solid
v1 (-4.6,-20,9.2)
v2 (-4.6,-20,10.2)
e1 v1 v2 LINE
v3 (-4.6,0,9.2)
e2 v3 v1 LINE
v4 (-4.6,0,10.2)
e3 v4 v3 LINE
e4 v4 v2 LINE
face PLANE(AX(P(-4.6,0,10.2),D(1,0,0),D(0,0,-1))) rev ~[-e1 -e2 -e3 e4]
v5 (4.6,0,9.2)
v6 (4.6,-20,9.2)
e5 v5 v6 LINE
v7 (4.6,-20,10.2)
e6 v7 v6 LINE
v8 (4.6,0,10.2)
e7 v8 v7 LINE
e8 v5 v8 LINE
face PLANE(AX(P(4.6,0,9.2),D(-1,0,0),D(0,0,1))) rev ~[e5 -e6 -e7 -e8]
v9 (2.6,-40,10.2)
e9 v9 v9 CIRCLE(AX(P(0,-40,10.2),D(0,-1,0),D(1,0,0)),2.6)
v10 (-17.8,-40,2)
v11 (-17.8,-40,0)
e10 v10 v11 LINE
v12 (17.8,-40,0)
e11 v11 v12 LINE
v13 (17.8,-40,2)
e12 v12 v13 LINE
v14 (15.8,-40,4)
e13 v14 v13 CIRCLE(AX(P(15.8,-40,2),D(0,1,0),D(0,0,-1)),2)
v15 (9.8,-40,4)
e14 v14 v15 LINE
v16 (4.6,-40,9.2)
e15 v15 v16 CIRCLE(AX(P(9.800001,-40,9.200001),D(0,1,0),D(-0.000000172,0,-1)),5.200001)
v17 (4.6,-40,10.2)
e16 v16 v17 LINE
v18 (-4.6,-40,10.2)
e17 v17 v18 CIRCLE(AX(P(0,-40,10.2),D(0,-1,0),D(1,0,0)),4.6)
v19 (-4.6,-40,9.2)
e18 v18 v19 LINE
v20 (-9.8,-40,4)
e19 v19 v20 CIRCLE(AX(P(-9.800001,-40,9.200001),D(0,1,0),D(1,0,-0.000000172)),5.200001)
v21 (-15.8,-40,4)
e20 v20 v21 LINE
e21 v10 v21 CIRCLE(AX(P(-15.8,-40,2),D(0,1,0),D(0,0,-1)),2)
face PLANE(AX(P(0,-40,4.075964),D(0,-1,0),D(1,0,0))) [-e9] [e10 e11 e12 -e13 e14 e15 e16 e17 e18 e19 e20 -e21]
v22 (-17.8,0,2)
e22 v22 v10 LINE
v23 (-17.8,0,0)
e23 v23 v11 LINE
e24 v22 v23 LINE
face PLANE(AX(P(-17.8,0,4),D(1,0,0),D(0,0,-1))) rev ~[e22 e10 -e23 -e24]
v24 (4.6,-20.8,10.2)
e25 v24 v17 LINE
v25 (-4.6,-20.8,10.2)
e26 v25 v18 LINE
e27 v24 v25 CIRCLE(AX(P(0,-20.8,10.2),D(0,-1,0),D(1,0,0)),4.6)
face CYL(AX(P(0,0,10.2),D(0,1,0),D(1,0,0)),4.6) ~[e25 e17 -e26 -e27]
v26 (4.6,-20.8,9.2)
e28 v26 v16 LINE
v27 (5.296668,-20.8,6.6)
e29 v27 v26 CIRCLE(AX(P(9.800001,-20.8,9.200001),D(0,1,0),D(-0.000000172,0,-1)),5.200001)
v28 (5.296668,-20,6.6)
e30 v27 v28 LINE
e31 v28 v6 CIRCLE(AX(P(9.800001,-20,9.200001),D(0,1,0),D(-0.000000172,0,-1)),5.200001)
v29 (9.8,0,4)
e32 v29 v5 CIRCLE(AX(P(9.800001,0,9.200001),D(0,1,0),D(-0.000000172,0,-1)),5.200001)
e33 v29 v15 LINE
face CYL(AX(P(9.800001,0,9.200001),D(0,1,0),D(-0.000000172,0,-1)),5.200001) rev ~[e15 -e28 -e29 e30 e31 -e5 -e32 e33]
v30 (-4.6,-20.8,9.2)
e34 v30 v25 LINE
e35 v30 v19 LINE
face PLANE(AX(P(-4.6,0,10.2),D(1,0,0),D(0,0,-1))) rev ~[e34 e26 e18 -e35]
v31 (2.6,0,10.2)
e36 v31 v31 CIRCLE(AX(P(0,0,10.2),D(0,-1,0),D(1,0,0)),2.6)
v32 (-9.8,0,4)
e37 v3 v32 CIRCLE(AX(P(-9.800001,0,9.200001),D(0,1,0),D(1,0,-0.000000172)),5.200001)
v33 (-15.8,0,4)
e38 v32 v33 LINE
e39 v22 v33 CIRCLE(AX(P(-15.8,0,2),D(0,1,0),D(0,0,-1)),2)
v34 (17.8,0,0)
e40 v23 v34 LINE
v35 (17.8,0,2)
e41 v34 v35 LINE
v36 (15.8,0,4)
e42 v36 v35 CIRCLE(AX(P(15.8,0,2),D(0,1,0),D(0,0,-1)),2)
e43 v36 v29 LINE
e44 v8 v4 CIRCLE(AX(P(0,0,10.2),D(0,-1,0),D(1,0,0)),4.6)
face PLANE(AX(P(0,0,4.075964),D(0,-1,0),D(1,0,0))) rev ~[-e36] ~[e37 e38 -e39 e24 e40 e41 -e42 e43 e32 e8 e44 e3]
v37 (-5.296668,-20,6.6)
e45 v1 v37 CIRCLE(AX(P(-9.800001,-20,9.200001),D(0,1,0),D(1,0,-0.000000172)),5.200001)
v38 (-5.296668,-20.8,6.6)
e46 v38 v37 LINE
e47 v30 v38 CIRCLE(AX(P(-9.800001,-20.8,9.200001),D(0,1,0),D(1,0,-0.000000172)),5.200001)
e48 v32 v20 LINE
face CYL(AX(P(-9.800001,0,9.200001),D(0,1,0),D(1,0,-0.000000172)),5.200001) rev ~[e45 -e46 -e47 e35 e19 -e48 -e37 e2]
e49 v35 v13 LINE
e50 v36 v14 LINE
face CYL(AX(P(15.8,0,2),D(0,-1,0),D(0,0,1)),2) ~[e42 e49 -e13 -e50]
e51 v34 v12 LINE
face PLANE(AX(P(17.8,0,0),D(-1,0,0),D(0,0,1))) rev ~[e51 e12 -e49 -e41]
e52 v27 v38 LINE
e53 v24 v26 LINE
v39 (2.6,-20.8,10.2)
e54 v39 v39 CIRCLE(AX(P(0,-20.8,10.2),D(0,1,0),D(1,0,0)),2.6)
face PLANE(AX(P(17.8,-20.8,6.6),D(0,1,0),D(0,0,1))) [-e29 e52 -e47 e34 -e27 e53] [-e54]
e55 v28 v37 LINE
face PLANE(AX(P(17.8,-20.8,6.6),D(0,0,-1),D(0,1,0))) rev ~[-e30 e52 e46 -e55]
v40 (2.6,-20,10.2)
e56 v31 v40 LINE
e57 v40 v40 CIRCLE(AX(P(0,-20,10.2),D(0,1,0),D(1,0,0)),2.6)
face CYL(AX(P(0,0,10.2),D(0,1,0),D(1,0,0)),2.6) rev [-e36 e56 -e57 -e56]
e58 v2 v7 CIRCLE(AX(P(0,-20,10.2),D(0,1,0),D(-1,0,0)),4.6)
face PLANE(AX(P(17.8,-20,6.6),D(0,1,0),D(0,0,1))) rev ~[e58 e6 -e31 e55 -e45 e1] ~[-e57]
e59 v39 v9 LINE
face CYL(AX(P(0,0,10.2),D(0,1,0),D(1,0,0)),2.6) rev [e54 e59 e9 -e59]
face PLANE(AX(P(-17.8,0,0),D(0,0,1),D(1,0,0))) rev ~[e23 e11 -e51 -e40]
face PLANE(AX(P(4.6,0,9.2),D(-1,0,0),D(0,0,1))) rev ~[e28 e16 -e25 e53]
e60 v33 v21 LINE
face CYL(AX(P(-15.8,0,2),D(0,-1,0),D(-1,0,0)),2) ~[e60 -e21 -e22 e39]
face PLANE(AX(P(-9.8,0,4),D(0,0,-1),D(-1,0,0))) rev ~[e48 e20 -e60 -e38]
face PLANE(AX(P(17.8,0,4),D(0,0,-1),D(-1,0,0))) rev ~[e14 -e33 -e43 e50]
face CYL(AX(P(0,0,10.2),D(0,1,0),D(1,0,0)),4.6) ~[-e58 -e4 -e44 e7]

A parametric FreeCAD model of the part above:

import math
import FreeCAD as App
import Part
import Sketcher
Q = App.Units.Quantity


def edges_at(feature, points):
    """Names of the edges that pass closest to the given points."""
    edges = feature.Shape.Edges
    near = lambda p: min(range(len(edges)), key=lambda i: edges[i].distToShape(Part.Vertex(*p))[0])
    return sorted({f"Edge{near(p) + 1}" for p in points})


def add_polygon(sketch, points):
    """Adds a closed chain of lines whose ends are joined by coincident constraints."""
    first, n = sketch.GeometryCount, len(points)
    for a, b in zip(points, points[1:] + points[:1]):
        sketch.addGeometry(Part.LineSegment(App.Vector(*a, 0), App.Vector(*b, 0)), False)
    for i in range(n):
        sketch.addConstraint(Sketcher.Constraint("Coincident", first + i, 2, first + (i + 1) % n, 1))

doc = App.newDocument("Part")
body = doc.addObject("PartDesign::Body", "Body")

# Sketch on XZ plane
sketch1 = body.newObject("Sketcher::SketchObject", "Sketch")
sketch1.AttachmentSupport = (doc.getObject("XZ_Plane"), [""])
sketch1.MapMode = "FlatFace"
sketch1.addGeometry([
    Part.LineSegment(App.Vector(-17.8, 4, 0), App.Vector(-17.8, 0, 0)),  # 0
    Part.LineSegment(App.Vector(-17.8, 0, 0), App.Vector(17.8, 0, 0)),  # 1
    Part.LineSegment(App.Vector(17.8, 0, 0), App.Vector(17.8, 4, 0)),  # 2
    Part.LineSegment(App.Vector(17.8, 4, 0), App.Vector(9.8, 4, 0)),  # 3
    Part.ArcOfCircle(Part.Circle(App.Vector(9.8, 9.2, 0), App.Vector(0, 0, 1), 5.2), math.radians(-180), math.radians(-90)),  # 4
    Part.LineSegment(App.Vector(4.6, 9.2, 0), App.Vector(4.6, 10.2, 0)),  # 5
    Part.ArcOfCircle(Part.Circle(App.Vector(0, 10.2, 0), App.Vector(0, 0, 1), 4.6), math.radians(0), math.radians(180)),  # 6
    Part.LineSegment(App.Vector(-4.6, 10.2, 0), App.Vector(-4.6, 9.2, 0)),  # 7
    Part.ArcOfCircle(Part.Circle(App.Vector(-9.8, 9.2, 0), App.Vector(0, 0, 1), 5.2), math.radians(-90), math.radians(0)),  # 8
    Part.LineSegment(App.Vector(-9.8, 4, 0), App.Vector(-17.8, 4, 0)),  # 9
    Part.Circle(App.Vector(0, 10.2, 0), App.Vector(0, 0, 1), 2.6),  # 10
], False)
sketch1.addConstraint([
    Sketcher.Constraint("Coincident", 0, 2, 1, 1),
    Sketcher.Constraint("Coincident", 1, 2, 2, 1),
    Sketcher.Constraint("Coincident", 2, 2, 3, 1),
    Sketcher.Constraint("Tangent", 3, 2, 4, 2),
    Sketcher.Constraint("Tangent", 4, 1, 5, 1),
    Sketcher.Constraint("Tangent", 5, 2, 6, 1),
    Sketcher.Constraint("Tangent", 6, 2, 7, 1),
    Sketcher.Constraint("Tangent", 7, 2, 8, 2),
    Sketcher.Constraint("Tangent", 8, 1, 9, 1),
    Sketcher.Constraint("Coincident", 9, 2, 0, 1),
    Sketcher.Constraint("Vertical", 0),
    Sketcher.Constraint("Horizontal", 1),
    Sketcher.Constraint("Vertical", 2),
    Sketcher.Constraint("Horizontal", 3),
    Sketcher.Constraint("Vertical", 5),
    Sketcher.Constraint("Vertical", 7),
    Sketcher.Constraint("Horizontal", 9),
    Sketcher.Constraint("Coincident", 10, 3, 6, 3),
    Sketcher.Constraint("Equal", 4, 8),
    Sketcher.Constraint("Symmetric", 0, 2, 1, 2, -1, 1),
    Sketcher.Constraint("Symmetric", 4, 3, 8, 3, -2),
    Sketcher.Constraint("Diameter", 10, Q("5.2 mm")),
    Sketcher.Constraint("Radius", 4, Q("5.200001 mm")),
    Sketcher.Constraint("Radius", 6, Q("4.6 mm")),
    Sketcher.Constraint("DistanceX", 3, 2, 3, 1, Q("8 mm")),
    Sketcher.Constraint("DistanceY", 0, 2, 0, 1, Q("4 mm")),
    Sketcher.Constraint("DistanceY", 5, 1, 5, 2, Q("1 mm")),
])
pad1 = body.newObject("PartDesign::Pad", "Pad")
pad1.Profile = sketch1
pad1.Length = 40

# Sketch on YZ plane
sketch2 = body.newObject("Sketcher::SketchObject", "Sketch001")
sketch2.AttachmentSupport = (doc.getObject("YZ_Plane"), [""])
sketch2.MapMode = "FlatFace"
sketch2.AttachmentOffset = App.Placement(App.Vector(0, 0, 17.8), App.Rotation())
add_polygon(sketch2, [(-20.8, 14.8), (-20.8, 6.6), (-20, 6.6), (-20, 14.8)])  # lines 0-3
sketch2.addConstraint([
    Sketcher.Constraint("Vertical", 0),
    Sketcher.Constraint("Horizontal", 1),
    Sketcher.Constraint("Vertical", 2),
    Sketcher.Constraint("Horizontal", 3),
    Sketcher.Constraint("DistanceX", 1, 1, 1, 2, Q("0.8 mm")),
    Sketcher.Constraint("DistanceY", 0, 2, 0, 1, Q("8.2 mm")),
    Sketcher.Constraint("DistanceX", 1, 2, -1, 1, Q("20 mm")),
    Sketcher.Constraint("DistanceY", -1, 1, 0, 2, Q("6.6 mm")),
])
pocket1 = body.newObject("PartDesign::Pocket", "Pocket")
pocket1.Profile = sketch2
pocket1.Type = "ThroughAll"
doc.recompute()

fillet = body.newObject("PartDesign::Fillet", "Fillet")
fillet.Base = (pocket1, edges_at(pocket1, [(-17.8, -20, 4), (17.8, -20, 4)]))
fillet.Radius = 2

doc.recompute()
